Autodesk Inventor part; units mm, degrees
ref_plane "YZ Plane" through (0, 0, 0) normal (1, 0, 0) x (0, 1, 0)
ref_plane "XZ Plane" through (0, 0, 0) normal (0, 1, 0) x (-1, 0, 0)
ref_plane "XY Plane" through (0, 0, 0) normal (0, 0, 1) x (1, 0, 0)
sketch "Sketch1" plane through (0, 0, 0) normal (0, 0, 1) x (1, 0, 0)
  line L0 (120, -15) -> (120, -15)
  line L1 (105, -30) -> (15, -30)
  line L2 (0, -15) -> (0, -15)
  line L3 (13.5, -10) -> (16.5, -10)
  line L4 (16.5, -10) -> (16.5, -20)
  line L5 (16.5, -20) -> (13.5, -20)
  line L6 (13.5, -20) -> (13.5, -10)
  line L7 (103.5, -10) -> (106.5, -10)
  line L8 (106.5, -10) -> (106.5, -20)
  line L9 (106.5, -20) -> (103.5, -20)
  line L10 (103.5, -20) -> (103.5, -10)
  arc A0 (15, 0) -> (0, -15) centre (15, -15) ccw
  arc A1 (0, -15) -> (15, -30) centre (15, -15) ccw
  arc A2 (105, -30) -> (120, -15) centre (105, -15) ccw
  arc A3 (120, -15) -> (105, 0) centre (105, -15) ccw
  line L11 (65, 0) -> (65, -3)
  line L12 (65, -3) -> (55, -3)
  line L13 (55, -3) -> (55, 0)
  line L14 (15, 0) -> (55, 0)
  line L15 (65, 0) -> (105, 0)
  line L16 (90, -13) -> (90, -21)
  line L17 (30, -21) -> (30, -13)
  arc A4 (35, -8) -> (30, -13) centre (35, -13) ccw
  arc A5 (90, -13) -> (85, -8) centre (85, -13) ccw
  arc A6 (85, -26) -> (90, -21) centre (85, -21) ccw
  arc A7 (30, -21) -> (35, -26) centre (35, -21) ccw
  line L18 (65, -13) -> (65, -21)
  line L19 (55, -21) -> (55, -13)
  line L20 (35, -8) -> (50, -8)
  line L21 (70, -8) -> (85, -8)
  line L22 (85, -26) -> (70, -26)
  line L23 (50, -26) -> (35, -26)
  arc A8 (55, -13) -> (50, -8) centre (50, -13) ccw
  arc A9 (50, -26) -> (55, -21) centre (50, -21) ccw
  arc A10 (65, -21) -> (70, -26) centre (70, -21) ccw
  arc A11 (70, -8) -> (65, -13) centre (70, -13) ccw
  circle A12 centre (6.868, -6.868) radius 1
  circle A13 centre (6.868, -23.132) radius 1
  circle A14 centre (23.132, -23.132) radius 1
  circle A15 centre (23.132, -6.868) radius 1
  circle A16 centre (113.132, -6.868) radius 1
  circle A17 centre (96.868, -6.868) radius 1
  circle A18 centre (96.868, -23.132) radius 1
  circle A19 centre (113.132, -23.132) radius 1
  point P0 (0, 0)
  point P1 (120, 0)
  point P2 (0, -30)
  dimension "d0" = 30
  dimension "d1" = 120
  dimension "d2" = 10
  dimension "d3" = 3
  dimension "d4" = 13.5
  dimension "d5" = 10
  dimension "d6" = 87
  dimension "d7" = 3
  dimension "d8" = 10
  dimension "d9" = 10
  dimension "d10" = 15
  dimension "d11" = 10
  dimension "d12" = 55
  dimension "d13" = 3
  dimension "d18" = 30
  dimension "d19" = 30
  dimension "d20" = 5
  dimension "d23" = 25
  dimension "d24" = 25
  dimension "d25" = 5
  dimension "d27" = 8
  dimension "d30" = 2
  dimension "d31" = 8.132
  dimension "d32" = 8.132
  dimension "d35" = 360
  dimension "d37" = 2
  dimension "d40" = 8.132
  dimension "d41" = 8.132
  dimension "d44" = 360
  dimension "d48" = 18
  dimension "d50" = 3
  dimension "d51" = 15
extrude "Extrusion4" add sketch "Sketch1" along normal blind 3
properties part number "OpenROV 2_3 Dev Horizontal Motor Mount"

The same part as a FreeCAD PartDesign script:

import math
import FreeCAD as App
import Part
import Sketcher
from FreeCAD import Vector


def add_polygon(sketch, points):
    """Adds a closed chain of lines whose ends are joined by coincident constraints."""
    first, n = sketch.GeometryCount, len(points)
    for a, b in zip(points, points[1:] + points[:1]):
        sketch.addGeometry(Part.LineSegment(App.Vector(*a, 0), App.Vector(*b, 0)), False)
    for i in range(n):
        sketch.addConstraint(Sketcher.Constraint("Coincident", first + i, 2, first + (i + 1) % n, 1))

doc = App.newDocument("Part")
params = doc.addObject("Spreadsheet::Sheet", "Params")
for row, (alias, value) in enumerate([
    ("sketch1_diameter", "2 mm"),
    ("sketch1_radius", "15 mm"),
    ("sketch1_radius2", "5 mm"),
    ("sketch1_width", "10 mm"),
    ("sketch1_width2", "15 mm"),
    ("pad1_length", "3 mm"),
], start=1):
    params.set(f"A{row}", alias)
    params.set(f"B{row}", "=" + value)
    params.setAlias(f"B{row}", alias)

body = doc.addObject("PartDesign::Body", "Body")

sketch1 = body.newObject("Sketcher::SketchObject", "Sketch")
sketch1.AttachmentSupport = (doc.getObject("XY_Plane"), [""])
sketch1.MapMode = "FlatFace"
sketch1.addGeometry(Part.LineSegment(Vector(15, -30, 0), Vector(105, -30, 0)), False)
sketch1.addGeometry(Part.ArcOfCircle(Part.Circle(Vector(105, -15, 0), Vector(0, 0, 1), 15), math.radians(-90), math.radians(90)), False)
sketch1.addGeometry(Part.LineSegment(Vector(105, 0, 0), Vector(65, 0, 0)), False)
sketch1.addGeometry(Part.LineSegment(Vector(65, 0, 0), Vector(65, -3, 0)), False)
sketch1.addGeometry(Part.LineSegment(Vector(65, -3, 0), Vector(55, -3, 0)), False)
sketch1.addGeometry(Part.LineSegment(Vector(55, -3, 0), Vector(55, 0, 0)), False)
sketch1.addGeometry(Part.LineSegment(Vector(55, 0, 0), Vector(15, 0, 0)), False)
sketch1.addGeometry(Part.ArcOfCircle(Part.Circle(Vector(15, -15, 0), Vector(0, 0, 1), 15), math.radians(90), math.radians(270)), False)
sketch1.addGeometry(Part.Circle(Vector(6.9, -23.1, 0), Vector(0, 0, 1), 1), False)
sketch1.addGeometry(Part.Circle(Vector(23.1, -23.1, 0), Vector(0, 0, 1), 1), False)
sketch1.addGeometry(Part.ArcOfCircle(Part.Circle(Vector(35, -21, 0), Vector(0, 0, 1), 5), math.radians(180), math.radians(270)), False)
sketch1.addGeometry(Part.LineSegment(Vector(30, -21, 0), Vector(30, -13, 0)), False)
sketch1.addGeometry(Part.ArcOfCircle(Part.Circle(Vector(35, -13, 0), Vector(0, 0, 1), 5), math.radians(90), math.radians(180)), False)
sketch1.addGeometry(Part.LineSegment(Vector(35, -8, 0), Vector(50, -8, 0)), False)
sketch1.addGeometry(Part.ArcOfCircle(Part.Circle(Vector(50, -13, 0), Vector(0, 0, 1), 5), math.radians(0), math.radians(90)), False)
sketch1.addGeometry(Part.LineSegment(Vector(55, -13, 0), Vector(55, -21, 0)), False)
sketch1.addGeometry(Part.ArcOfCircle(Part.Circle(Vector(50, -21, 0), Vector(0, 0, 1), 5), math.radians(-90), math.radians(0)), False)
sketch1.addGeometry(Part.LineSegment(Vector(50, -26, 0), Vector(35, -26, 0)), False)
sketch1.addGeometry(Part.Circle(Vector(96.9, -23.1, 0), Vector(0, 0, 1), 1), False)
sketch1.addGeometry(Part.Circle(Vector(113.1, -23.1, 0), Vector(0, 0, 1), 1), False)
sketch1.addGeometry(Part.ArcOfCircle(Part.Circle(Vector(85, -13, 0), Vector(0, 0, 1), 5), math.radians(0), math.radians(90)), False)
sketch1.addGeometry(Part.LineSegment(Vector(90, -13, 0), Vector(90, -21, 0)), False)
sketch1.addGeometry(Part.ArcOfCircle(Part.Circle(Vector(85, -21, 0), Vector(0, 0, 1), 5), math.radians(-90), math.radians(0)), False)
sketch1.addGeometry(Part.LineSegment(Vector(85, -26, 0), Vector(70, -26, 0)), False)
sketch1.addGeometry(Part.ArcOfCircle(Part.Circle(Vector(70, -21, 0), Vector(0, 0, 1), 5), math.radians(180), math.radians(270)), False)
sketch1.addGeometry(Part.LineSegment(Vector(65, -21, 0), Vector(65, -13, 0)), False)
sketch1.addGeometry(Part.ArcOfCircle(Part.Circle(Vector(70, -13, 0), Vector(0, 0, 1), 5), math.radians(90), math.radians(180)), False)
sketch1.addGeometry(Part.LineSegment(Vector(70, -8, 0), Vector(85, -8, 0)), False)
add_polygon(sketch1, [(13.5, -20), (13.5, -10), (16.5, -10), (16.5, -20)])
sketch1.addGeometry(Part.Circle(Vector(6.9, -6.9, 0), Vector(0, 0, 1), 1), False)
sketch1.addGeometry(Part.Circle(Vector(23.1, -6.9, 0), Vector(0, 0, 1), 1), False)
add_polygon(sketch1, [(103.5, -20), (103.5, -10), (106.5, -10), (106.5, -20)])
sketch1.addGeometry(Part.Circle(Vector(96.9, -6.9, 0), Vector(0, 0, 1), 1), False)
sketch1.addGeometry(Part.Circle(Vector(113.1, -6.9, 0), Vector(0, 0, 1), 1), False)
sketch1.addConstraint(Sketcher.Constraint("Tangent", 0, 2, 1, 1))
sketch1.addConstraint(Sketcher.Constraint("Tangent", 1, 2, 2, 1))
sketch1.addConstraint(Sketcher.Constraint("Coincident", 2, 2, 3, 1))
sketch1.addConstraint(Sketcher.Constraint("Coincident", 3, 2, 4, 1))
sketch1.addConstraint(Sketcher.Constraint("Coincident", 4, 2, 5, 1))
sketch1.addConstraint(Sketcher.Constraint("Coincident", 5, 2, 6, 1))
sketch1.addConstraint(Sketcher.Constraint("Tangent", 6, 2, 7, 1))
sketch1.addConstraint(Sketcher.Constraint("Tangent", 7, 2, 0, 1))
sketch1.addConstraint(Sketcher.Constraint("Tangent", 10, 1, 11, 1))
sketch1.addConstraint(Sketcher.Constraint("Tangent", 11, 2, 12, 2))
sketch1.addConstraint(Sketcher.Constraint("Tangent", 12, 1, 13, 1))
sketch1.addConstraint(Sketcher.Constraint("Tangent", 13, 2, 14, 2))
sketch1.addConstraint(Sketcher.Constraint("Tangent", 14, 1, 15, 1))
sketch1.addConstraint(Sketcher.Constraint("Tangent", 15, 2, 16, 2))
sketch1.addConstraint(Sketcher.Constraint("Tangent", 16, 1, 17, 1))
sketch1.addConstraint(Sketcher.Constraint("Tangent", 17, 2, 10, 2))
sketch1.addConstraint(Sketcher.Constraint("Tangent", 20, 1, 21, 1))
sketch1.addConstraint(Sketcher.Constraint("Tangent", 21, 2, 22, 2))
sketch1.addConstraint(Sketcher.Constraint("Tangent", 22, 1, 23, 1))
sketch1.addConstraint(Sketcher.Constraint("Tangent", 23, 2, 24, 2))
sketch1.addConstraint(Sketcher.Constraint("Tangent", 24, 1, 25, 1))
sketch1.addConstraint(Sketcher.Constraint("Tangent", 25, 2, 26, 2))
sketch1.addConstraint(Sketcher.Constraint("Tangent", 26, 1, 27, 1))
sketch1.addConstraint(Sketcher.Constraint("Tangent", 27, 2, 20, 2))
sketch1.addConstraint(Sketcher.Constraint("Horizontal", 0))
sketch1.addConstraint(Sketcher.Constraint("Horizontal", 2))
sketch1.addConstraint(Sketcher.Constraint("Vertical", 3))
sketch1.addConstraint(Sketcher.Constraint("Horizontal", 4))
sketch1.addConstraint(Sketcher.Constraint("Vertical", 5))
sketch1.addConstraint(Sketcher.Constraint("Horizontal", 6))
sketch1.addConstraint(Sketcher.Constraint("Vertical", 11))
sketch1.addConstraint(Sketcher.Constraint("Horizontal", 13))
sketch1.addConstraint(Sketcher.Constraint("Vertical", 15))
sketch1.addConstraint(Sketcher.Constraint("Horizontal", 17))
sketch1.addConstraint(Sketcher.Constraint("Vertical", 21))
sketch1.addConstraint(Sketcher.Constraint("Horizontal", 23))
sketch1.addConstraint(Sketcher.Constraint("Vertical", 25))
sketch1.addConstraint(Sketcher.Constraint("Horizontal", 27))
sketch1.addConstraint(Sketcher.Constraint("Vertical", 28))
sketch1.addConstraint(Sketcher.Constraint("Horizontal", 29))
sketch1.addConstraint(Sketcher.Constraint("Vertical", 30))
sketch1.addConstraint(Sketcher.Constraint("Horizontal", 31))
sketch1.addConstraint(Sketcher.Constraint("Vertical", 34))
sketch1.addConstraint(Sketcher.Constraint("Horizontal", 35))
sketch1.addConstraint(Sketcher.Constraint("Vertical", 36))
sketch1.addConstraint(Sketcher.Constraint("Horizontal", 37))
sketch1.addConstraint(Sketcher.Constraint("Equal", 1, 7))
sketch1.addConstraint(Sketcher.Constraint("Equal", 8, 9))
sketch1.addConstraint(Sketcher.Constraint("Equal", 10, 12))
sketch1.addConstraint(Sketcher.Constraint("Equal", 12, 14))
sketch1.addConstraint(Sketcher.Constraint("Equal", 14, 16))
sketch1.addConstraint(Sketcher.Constraint("Equal", 9, 18))
sketch1.addConstraint(Sketcher.Constraint("Equal", 18, 19))
sketch1.addConstraint(Sketcher.Constraint("Equal", 16, 20))
sketch1.addConstraint(Sketcher.Constraint("Equal", 20, 22))
sketch1.addConstraint(Sketcher.Constraint("Equal", 22, 24))
sketch1.addConstraint(Sketcher.Constraint("Equal", 24, 26))
sketch1.addConstraint(Sketcher.Constraint("Equal", 19, 32))
sketch1.addConstraint(Sketcher.Constraint("Equal", 32, 33))
sketch1.addConstraint(Sketcher.Constraint("Equal", 33, 38))
sketch1.addConstraint(Sketcher.Constraint("Equal", 38, 39))
sketch1.addConstraint(Sketcher.Constraint("PointOnObject", 1, 2, -1))
sketch1.addConstraint(Sketcher.Constraint("Horizontal", 8, 3, 9, 3))
sketch1.addConstraint(Sketcher.Constraint("Horizontal", 9, 3, 18, 3))
sketch1.addConstraint(Sketcher.Constraint("Horizontal", 18, 3, 19, 3))
sketch1.addConstraint(Sketcher.Constraint("Horizontal", 14, 3, 20, 3))
sketch1.addConstraint(Sketcher.Constraint("Horizontal", 16, 3, 22, 3))
sketch1.addConstraint(Sketcher.Constraint("Horizontal", 32, 3, 33, 3))
sketch1.addConstraint(Sketcher.Constraint("Horizontal", 33, 3, 38, 3))
sketch1.addConstraint(Sketcher.Constraint("Horizontal", 38, 3, 39, 3))
sketch1.addConstraint(Sketcher.Constraint("Horizontal", 29, 2, 34, 2))
sketch1.addConstraint(Sketcher.Constraint("Horizontal", 31, 2, 36, 2))
sketch1.addConstraint(Sketcher.Constraint("Vertical", 8, 3, 32, 3))
sketch1.addConstraint(Sketcher.Constraint("Vertical", 9, 3, 33, 3))
sketch1.addConstraint(Sketcher.Constraint("Vertical", 18, 3, 38, 3))
sketch1.addConstraint(Sketcher.Constraint("Vertical", 19, 3, 39, 3))
sketch1.addConstraint(Sketcher.Constraint("Vertical", 5, 2, 14, 1))
sketch1.addConstraint(Sketcher.Constraint("Vertical", 3, 2, 24, 1))
sketch1.addConstraint(Sketcher.Constraint("Equal", 2, 6))
sketch1.addConstraint(Sketcher.Constraint("Equal", 17, 23))
sketch1.addConstraint(Sketcher.Constraint("Equal", 31, 35))
sketch1.addConstraint(Sketcher.Constraint("Equal", 37, 3))
sketch1.addConstraint(Sketcher.Constraint("Equal", 4, 28))
sketch1.addConstraint(Sketcher.Constraint("Diameter", 8, 2.0))
sketch1.addConstraint(Sketcher.Constraint("Radius", 1, 15.0))
sketch1.addConstraint(Sketcher.Constraint("Radius", 10, 5.0))
sketch1.addConstraint(Sketcher.Constraint("DistanceX", 4, 2, 4, 1, 10.0))
sketch1.addConstraint(Sketcher.Constraint("DistanceX", 13, 1, 13, 2, 15.0))
sketch1.addConstraint(Sketcher.Constraint("DistanceX", 29, 1, 29, 2, 3.0))
sketch1.addConstraint(Sketcher.Constraint("DistanceY", 11, 1, 11, 2, 8.0))
sketch1.addConstraint(Sketcher.Constraint("DistanceX", -1, 1, 7, 3, 15.0))
sketch1.addConstraint(Sketcher.Constraint("DistanceX", -1, 1, 4, 2, 55.0))
sketch1.addConstraint(Sketcher.Constraint("DistanceY", 12, 1, -1, 1, 8.0))
sketch1.addConstraint(Sketcher.Constraint("DistanceY", 28, 2, -1, 1, 10.0))
sketch1.addConstraint(Sketcher.Constraint("DistanceX", -1, 1, 28, 2, 13.5))
sketch1.addConstraint(Sketcher.Constraint("DistanceX", 20, 1, 34, 2, 13.5))
sketch1.addConstraint(Sketcher.Constraint("DistanceX", 8, 3, 7, 3, 8.132))
sketch1.addConstraint(Sketcher.Constraint("DistanceY", 8, 3, 7, 3, 8.132))
sketch1.addConstraint(Sketcher.Constraint("DistanceX", 7, 3, 9, 3, 8.132))
sketch1.addConstraint(Sketcher.Constraint("DistanceX", 18, 3, 1, 3, 8.132))
sketch1.addConstraint(Sketcher.Constraint("DistanceX", 1, 3, 19, 3, 8.132))
sketch1.addConstraint(Sketcher.Constraint("DistanceY", 7, 3, 32, 3, 8.132))
sketch1.setExpression("Constraints[91]", "Params.sketch1_diameter")
sketch1.setExpression("Constraints[92]", "Params.sketch1_radius")
sketch1.setExpression("Constraints[93]", "Params.sketch1_radius2")
sketch1.setExpression("Constraints[94]", "Params.sketch1_width")
sketch1.setExpression("Constraints[95]", "Params.sketch1_width2")
pad1 = body.newObject("PartDesign::Pad", "Pad")
pad1.Profile = sketch1
pad1.setExpression("Length", "Params.pad1_length")

doc.recompute()
